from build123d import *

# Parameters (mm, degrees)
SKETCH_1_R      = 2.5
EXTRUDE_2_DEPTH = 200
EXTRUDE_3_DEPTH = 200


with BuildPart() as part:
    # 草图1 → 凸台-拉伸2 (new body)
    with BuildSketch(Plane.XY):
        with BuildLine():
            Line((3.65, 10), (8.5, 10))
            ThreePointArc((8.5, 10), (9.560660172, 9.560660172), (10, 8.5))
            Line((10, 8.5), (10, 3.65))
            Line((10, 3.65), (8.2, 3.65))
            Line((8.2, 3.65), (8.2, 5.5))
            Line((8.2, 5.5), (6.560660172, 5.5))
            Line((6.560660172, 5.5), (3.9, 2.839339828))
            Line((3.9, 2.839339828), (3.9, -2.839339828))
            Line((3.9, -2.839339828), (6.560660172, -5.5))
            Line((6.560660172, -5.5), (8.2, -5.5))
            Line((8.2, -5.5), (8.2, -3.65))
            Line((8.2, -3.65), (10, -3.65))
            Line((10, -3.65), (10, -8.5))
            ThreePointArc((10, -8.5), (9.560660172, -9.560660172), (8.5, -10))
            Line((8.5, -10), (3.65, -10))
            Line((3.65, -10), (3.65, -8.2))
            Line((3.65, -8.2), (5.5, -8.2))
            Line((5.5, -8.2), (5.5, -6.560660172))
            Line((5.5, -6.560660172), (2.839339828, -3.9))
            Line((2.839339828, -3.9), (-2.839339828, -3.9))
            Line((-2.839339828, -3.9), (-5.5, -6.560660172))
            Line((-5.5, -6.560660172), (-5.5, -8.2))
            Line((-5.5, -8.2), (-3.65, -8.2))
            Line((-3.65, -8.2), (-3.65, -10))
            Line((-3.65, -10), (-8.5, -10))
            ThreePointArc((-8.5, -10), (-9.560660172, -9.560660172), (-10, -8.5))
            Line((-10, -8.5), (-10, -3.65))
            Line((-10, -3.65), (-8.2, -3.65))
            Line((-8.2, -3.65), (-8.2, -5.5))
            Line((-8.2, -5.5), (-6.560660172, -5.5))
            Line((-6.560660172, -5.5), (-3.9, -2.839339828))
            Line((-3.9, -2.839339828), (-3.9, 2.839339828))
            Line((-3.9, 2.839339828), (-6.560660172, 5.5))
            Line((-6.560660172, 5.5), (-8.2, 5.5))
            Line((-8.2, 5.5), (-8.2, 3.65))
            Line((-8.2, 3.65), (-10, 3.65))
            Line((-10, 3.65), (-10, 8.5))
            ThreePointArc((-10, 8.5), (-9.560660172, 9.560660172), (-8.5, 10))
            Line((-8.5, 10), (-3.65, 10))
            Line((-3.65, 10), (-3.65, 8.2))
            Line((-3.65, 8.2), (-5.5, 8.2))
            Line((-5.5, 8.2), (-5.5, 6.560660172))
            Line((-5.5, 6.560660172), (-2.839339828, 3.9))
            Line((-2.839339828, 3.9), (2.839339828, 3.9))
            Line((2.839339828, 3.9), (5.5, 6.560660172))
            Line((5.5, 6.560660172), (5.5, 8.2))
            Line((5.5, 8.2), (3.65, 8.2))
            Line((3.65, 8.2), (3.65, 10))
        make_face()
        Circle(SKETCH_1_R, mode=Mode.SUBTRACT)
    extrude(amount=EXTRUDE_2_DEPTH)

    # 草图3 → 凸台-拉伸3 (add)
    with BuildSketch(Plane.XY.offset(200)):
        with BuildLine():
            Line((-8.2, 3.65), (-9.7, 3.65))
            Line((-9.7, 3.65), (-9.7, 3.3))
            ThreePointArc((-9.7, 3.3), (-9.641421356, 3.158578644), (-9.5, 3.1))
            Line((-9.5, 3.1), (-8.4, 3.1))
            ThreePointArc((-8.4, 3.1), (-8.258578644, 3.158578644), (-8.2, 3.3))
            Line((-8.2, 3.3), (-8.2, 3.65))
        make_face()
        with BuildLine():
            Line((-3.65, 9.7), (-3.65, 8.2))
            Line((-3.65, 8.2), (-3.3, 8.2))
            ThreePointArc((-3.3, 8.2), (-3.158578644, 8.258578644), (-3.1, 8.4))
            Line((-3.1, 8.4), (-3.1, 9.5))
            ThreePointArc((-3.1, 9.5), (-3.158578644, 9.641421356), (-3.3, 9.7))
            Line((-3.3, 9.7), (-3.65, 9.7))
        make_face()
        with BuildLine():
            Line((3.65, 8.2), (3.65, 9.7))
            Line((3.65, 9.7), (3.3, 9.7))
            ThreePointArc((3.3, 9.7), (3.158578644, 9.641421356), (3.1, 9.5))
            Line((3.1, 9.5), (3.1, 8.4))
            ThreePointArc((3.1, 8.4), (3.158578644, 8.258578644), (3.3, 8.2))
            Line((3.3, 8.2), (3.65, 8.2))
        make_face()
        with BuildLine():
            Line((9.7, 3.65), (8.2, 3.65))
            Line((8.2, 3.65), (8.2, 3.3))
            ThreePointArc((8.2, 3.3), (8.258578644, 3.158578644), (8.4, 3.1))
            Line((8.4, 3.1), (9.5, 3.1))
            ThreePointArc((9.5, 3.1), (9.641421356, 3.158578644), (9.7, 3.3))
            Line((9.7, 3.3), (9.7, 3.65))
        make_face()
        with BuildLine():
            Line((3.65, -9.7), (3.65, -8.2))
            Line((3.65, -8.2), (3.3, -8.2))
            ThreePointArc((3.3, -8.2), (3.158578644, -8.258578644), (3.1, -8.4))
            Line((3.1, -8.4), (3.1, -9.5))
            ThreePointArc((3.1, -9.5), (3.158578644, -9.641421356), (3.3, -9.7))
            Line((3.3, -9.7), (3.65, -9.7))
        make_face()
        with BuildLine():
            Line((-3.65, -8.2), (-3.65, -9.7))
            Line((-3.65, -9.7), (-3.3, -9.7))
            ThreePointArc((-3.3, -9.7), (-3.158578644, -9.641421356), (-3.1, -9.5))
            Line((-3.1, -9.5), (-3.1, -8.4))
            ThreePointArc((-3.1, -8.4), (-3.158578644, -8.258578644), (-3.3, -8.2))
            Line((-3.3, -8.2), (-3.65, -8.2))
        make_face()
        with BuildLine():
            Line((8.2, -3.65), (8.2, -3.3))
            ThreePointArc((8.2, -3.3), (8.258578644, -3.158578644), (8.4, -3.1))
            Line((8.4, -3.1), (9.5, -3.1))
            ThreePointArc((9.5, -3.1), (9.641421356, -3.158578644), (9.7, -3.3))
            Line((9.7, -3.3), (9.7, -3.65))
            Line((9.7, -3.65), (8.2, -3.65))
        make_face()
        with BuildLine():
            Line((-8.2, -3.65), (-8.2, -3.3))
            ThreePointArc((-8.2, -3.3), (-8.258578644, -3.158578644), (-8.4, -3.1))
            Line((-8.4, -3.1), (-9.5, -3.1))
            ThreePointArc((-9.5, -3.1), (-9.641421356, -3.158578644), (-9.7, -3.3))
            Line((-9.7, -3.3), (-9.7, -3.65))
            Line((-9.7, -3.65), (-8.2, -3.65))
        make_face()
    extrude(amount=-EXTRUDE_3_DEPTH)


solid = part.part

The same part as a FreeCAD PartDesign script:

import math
import FreeCAD as App
import Part
import Sketcher

V = App.Vector
Q = App.Units.Quantity

doc = App.newDocument("Part")
params = doc.addObject("Spreadsheet::Sheet", "Params")
for row, (alias, value) in enumerate([
    ("sketch1_diameter", "5 mm"),
    ("sketch1_radius", "1.5 mm"),
    ("sketch1_width", "1.8 mm"),
    ("sketch1_width2", "4.85 mm"),
    ("pad1_length", "200 mm"),
    ("sketch2_radius", "0.2 mm"),
    ("sketch2_width", "1.5 mm"),
    ("sketch2_width2", "0.35 mm"),
    ("pad2_length", "200 mm"),
], start=1):
    params.set(f"A{row}", alias)
    params.set(f"B{row}", "=" + value)
    params.setAlias(f"B{row}", alias)

body = doc.addObject("PartDesign::Body", "Body")

sketch1 = body.newObject("Sketcher::SketchObject", "Sketch")
sketch1.AttachmentSupport = (doc.getObject("XY_Plane"), [""])
sketch1.MapMode = "FlatFace"
sketch1.addGeometry([
    Part.LineSegment(V(8.5, 10, 0), V(3.6, 10, 0)),
    Part.LineSegment(V(3.6, 10, 0), V(3.6, 8.2, 0)),
    Part.LineSegment(V(3.6, 8.2, 0), V(5.5, 8.2, 0)),
    Part.LineSegment(V(5.5, 8.2, 0), V(5.5, 6.6, 0)),
    Part.LineSegment(V(5.5, 6.6, 0), V(2.8, 3.9, 0)),
    Part.LineSegment(V(2.8, 3.9, 0), V(-2.8, 3.9, 0)),
    Part.LineSegment(V(-2.8, 3.9, 0), V(-5.5, 6.6, 0)),
    Part.LineSegment(V(-5.5, 6.6, 0), V(-5.5, 8.2, 0)),
    Part.LineSegment(V(-5.5, 8.2, 0), V(-3.6, 8.2, 0)),
    Part.LineSegment(V(-3.6, 8.2, 0), V(-3.6, 10, 0)),
    Part.LineSegment(V(-3.6, 10, 0), V(-8.5, 10, 0)),
    Part.ArcOfCircle(Part.Circle(V(-8.5, 8.5, 0), V(0, 0, 1), 1.5), math.radians(90), math.radians(180)),
    Part.LineSegment(V(-10, 8.5, 0), V(-10, 3.6, 0)),
    Part.LineSegment(V(-10, 3.6, 0), V(-8.2, 3.6, 0)),
    Part.LineSegment(V(-8.2, 3.6, 0), V(-8.2, 5.5, 0)),
    Part.LineSegment(V(-8.2, 5.5, 0), V(-6.6, 5.5, 0)),
    Part.LineSegment(V(-6.6, 5.5, 0), V(-3.9, 2.8, 0)),
    Part.LineSegment(V(-3.9, 2.8, 0), V(-3.9, -2.8, 0)),
    Part.LineSegment(V(-3.9, -2.8, 0), V(-6.6, -5.5, 0)),
    Part.LineSegment(V(-6.6, -5.5, 0), V(-8.2, -5.5, 0)),
    Part.LineSegment(V(-8.2, -5.5, 0), V(-8.2, -3.6, 0)),
    Part.LineSegment(V(-8.2, -3.6, 0), V(-10, -3.6, 0)),
    Part.LineSegment(V(-10, -3.6, 0), V(-10, -8.5, 0)),
    Part.ArcOfCircle(Part.Circle(V(-8.5, -8.5, 0), V(0, 0, 1), 1.5), math.radians(180), math.radians(270)),
    Part.LineSegment(V(-8.5, -10, 0), V(-3.6, -10, 0)),
    Part.LineSegment(V(-3.6, -10, 0), V(-3.6, -8.2, 0)),
    Part.LineSegment(V(-3.6, -8.2, 0), V(-5.5, -8.2, 0)),
    Part.LineSegment(V(-5.5, -8.2, 0), V(-5.5, -6.6, 0)),
    Part.LineSegment(V(-5.5, -6.6, 0), V(-2.8, -3.9, 0)),
    Part.LineSegment(V(-2.8, -3.9, 0), V(2.8, -3.9, 0)),
    Part.LineSegment(V(2.8, -3.9, 0), V(5.5, -6.6, 0)),
    Part.LineSegment(V(5.5, -6.6, 0), V(5.5, -8.2, 0)),
    Part.LineSegment(V(5.5, -8.2, 0), V(3.6, -8.2, 0)),
    Part.LineSegment(V(3.6, -8.2, 0), V(3.6, -10, 0)),
    Part.LineSegment(V(3.6, -10, 0), V(8.5, -10, 0)),
    Part.ArcOfCircle(Part.Circle(V(8.5, -8.5, 0), V(0, 0, 1), 1.5), math.radians(-90), math.radians(0)),
    Part.LineSegment(V(10, -8.5, 0), V(10, -3.6, 0)),
    Part.LineSegment(V(10, -3.6, 0), V(8.2, -3.6, 0)),
    Part.LineSegment(V(8.2, -3.6, 0), V(8.2, -5.5, 0)),
    Part.LineSegment(V(8.2, -5.5, 0), V(6.6, -5.5, 0)),
    Part.LineSegment(V(6.6, -5.5, 0), V(3.9, -2.8, 0)),
    Part.LineSegment(V(3.9, -2.8, 0), V(3.9, 2.8, 0)),
    Part.LineSegment(V(3.9, 2.8, 0), V(6.6, 5.5, 0)),
    Part.LineSegment(V(6.6, 5.5, 0), V(8.2, 5.5, 0)),
    Part.LineSegment(V(8.2, 5.5, 0), V(8.2, 3.6, 0)),
    Part.LineSegment(V(8.2, 3.6, 0), V(10, 3.6, 0)),
    Part.LineSegment(V(10, 3.6, 0), V(10, 8.5, 0)),
    Part.ArcOfCircle(Part.Circle(V(8.5, 8.5, 0), V(0, 0, 1), 1.5), math.radians(0), math.radians(90)),
    Part.Circle(V(0, 0, 0), V(0, 0, 1), 2.5),
], False)
sketch1.addConstraint([
    Sketcher.Constraint("Coincident", 0, 2, 1, 1),
    Sketcher.Constraint("Coincident", 1, 2, 2, 1),
    Sketcher.Constraint("Coincident", 2, 2, 3, 1),
    Sketcher.Constraint("Coincident", 3, 2, 4, 1),
    Sketcher.Constraint("Coincident", 4, 2, 5, 1),
    Sketcher.Constraint("Coincident", 5, 2, 6, 1),
    Sketcher.Constraint("Coincident", 6, 2, 7, 1),
    Sketcher.Constraint("Coincident", 7, 2, 8, 1),
    Sketcher.Constraint("Coincident", 8, 2, 9, 1),
    Sketcher.Constraint("Coincident", 9, 2, 10, 1),
    Sketcher.Constraint("Tangent", 10, 2, 11, 1),
    Sketcher.Constraint("Tangent", 11, 2, 12, 1),
    Sketcher.Constraint("Coincident", 12, 2, 13, 1),
    Sketcher.Constraint("Coincident", 13, 2, 14, 1),
    Sketcher.Constraint("Coincident", 14, 2, 15, 1),
    Sketcher.Constraint("Coincident", 15, 2, 16, 1),
    Sketcher.Constraint("Coincident", 16, 2, 17, 1),
    Sketcher.Constraint("Coincident", 17, 2, 18, 1),
    Sketcher.Constraint("Coincident", 18, 2, 19, 1),
    Sketcher.Constraint("Coincident", 19, 2, 20, 1),
    Sketcher.Constraint("Coincident", 20, 2, 21, 1),
    Sketcher.Constraint("Coincident", 21, 2, 22, 1),
    Sketcher.Constraint("Tangent", 22, 2, 23, 1),
    Sketcher.Constraint("Tangent", 23, 2, 24, 1),
    Sketcher.Constraint("Coincident", 24, 2, 25, 1),
    Sketcher.Constraint("Coincident", 25, 2, 26, 1),
    Sketcher.Constraint("Coincident", 26, 2, 27, 1),
    Sketcher.Constraint("Coincident", 27, 2, 28, 1),
    Sketcher.Constraint("Coincident", 28, 2, 29, 1),
    Sketcher.Constraint("Coincident", 29, 2, 30, 1),
    Sketcher.Constraint("Coincident", 30, 2, 31, 1),
    Sketcher.Constraint("Coincident", 31, 2, 32, 1),
    Sketcher.Constraint("Coincident", 32, 2, 33, 1),
    Sketcher.Constraint("Coincident", 33, 2, 34, 1),
    Sketcher.Constraint("Tangent", 34, 2, 35, 1),
    Sketcher.Constraint("Tangent", 35, 2, 36, 1),
    Sketcher.Constraint("Coincident", 36, 2, 37, 1),
    Sketcher.Constraint("Coincident", 37, 2, 38, 1),
    Sketcher.Constraint("Coincident", 38, 2, 39, 1),
    Sketcher.Constraint("Coincident", 39, 2, 40, 1),
    Sketcher.Constraint("Coincident", 40, 2, 41, 1),
    Sketcher.Constraint("Coincident", 41, 2, 42, 1),
    Sketcher.Constraint("Coincident", 42, 2, 43, 1),
    Sketcher.Constraint("Coincident", 43, 2, 44, 1),
    Sketcher.Constraint("Coincident", 44, 2, 45, 1),
    Sketcher.Constraint("Coincident", 45, 2, 46, 1),
    Sketcher.Constraint("Tangent", 46, 2, 47, 1),
    Sketcher.Constraint("Tangent", 47, 2, 0, 1),
    Sketcher.Constraint("Horizontal", 0),
    Sketcher.Constraint("Vertical", 1),
    Sketcher.Constraint("Horizontal", 2),
    Sketcher.Constraint("Vertical", 3),
    Sketcher.Constraint("Horizontal", 5),
    Sketcher.Constraint("Vertical", 7),
    Sketcher.Constraint("Horizontal", 8),
    Sketcher.Constraint("Vertical", 9),
    Sketcher.Constraint("Horizontal", 10),
    Sketcher.Constraint("Vertical", 12),
    Sketcher.Constraint("Horizontal", 13),
    Sketcher.Constraint("Vertical", 14),
    Sketcher.Constraint("Horizontal", 15),
    Sketcher.Constraint("Vertical", 17),
    Sketcher.Constraint("Horizontal", 19),
    Sketcher.Constraint("Vertical", 20),
    Sketcher.Constraint("Horizontal", 21),
    Sketcher.Constraint("Vertical", 22),
    Sketcher.Constraint("Horizontal", 24),
    Sketcher.Constraint("Vertical", 25),
    Sketcher.Constraint("Horizontal", 26),
    Sketcher.Constraint("Vertical", 27),
    Sketcher.Constraint("Horizontal", 29),
    Sketcher.Constraint("Vertical", 31),
    Sketcher.Constraint("Horizontal", 32),
    Sketcher.Constraint("Vertical", 33),
    Sketcher.Constraint("Horizontal", 34),
    Sketcher.Constraint("Vertical", 36),
    Sketcher.Constraint("Horizontal", 37),
    Sketcher.Constraint("Vertical", 38),
    Sketcher.Constraint("Horizontal", 39),
    Sketcher.Constraint("Vertical", 41),
    Sketcher.Constraint("Horizontal", 43),
    Sketcher.Constraint("Vertical", 44),
    Sketcher.Constraint("Horizontal", 45),
    Sketcher.Constraint("Vertical", 46),
    Sketcher.Constraint("Coincident", 48, 3, -1, 1),
    Sketcher.Constraint("Equal", 11, 23),
    Sketcher.Constraint("Equal", 23, 35),
    Sketcher.Constraint("Equal", 35, 47),
    Sketcher.Constraint("Symmetric", 11, 3, 35, 3, -1, 1),
    Sketcher.Constraint("Symmetric", 23, 3, 47, 3, -1, 1),
    Sketcher.Constraint("Symmetric", 1, 2, 25, 2, -1, 1),
    Sketcher.Constraint("Symmetric", 3, 2, 27, 2, -1, 1),
    Sketcher.Constraint("Symmetric", 4, 2, 28, 2, -1, 1),
    Sketcher.Constraint("Symmetric", 6, 2, 30, 2, -1, 1),
    Sketcher.Constraint("Symmetric", 8, 2, 32, 2, -1, 1),
    Sketcher.Constraint("Symmetric", 13, 2, 37, 2, -1, 1),
    Sketcher.Constraint("Symmetric", 15, 2, 39, 2, -1, 1),
    Sketcher.Constraint("Symmetric", 16, 2, 40, 2, -1, 1),
    Sketcher.Constraint("Symmetric", 18, 2, 42, 2, -1, 1),
    Sketcher.Constraint("Symmetric", 20, 2, 44, 2, -1, 1),
    Sketcher.Constraint("Symmetric", 23, 3, 35, 3, -2),
    Sketcher.Constraint("Symmetric", 3, 2, 6, 2, -2),
    Sketcher.Constraint("Symmetric", 1, 2, 8, 2, -2),
    Sketcher.Constraint("Symmetric", 20, 2, 37, 2, -2),
    Sketcher.Constraint("Symmetric", 18, 2, 39, 2, -2),
    Sketcher.Constraint("Perpendicular", 4, 6),
    Sketcher.Constraint("Parallel", 6, 16),
    Sketcher.Constraint("Perpendicular", 16, 18),
    Sketcher.Constraint("Perpendicular", 28, 30),
    Sketcher.Constraint("Perpendicular", 40, 42),
    Sketcher.Constraint("Horizontal", 17, 2, 40, 2),
    Sketcher.Constraint("Equal", 45, 1),
    Sketcher.Constraint("Equal", 43, 3),
    Sketcher.Constraint("Equal", 34, 12),
    Sketcher.Constraint("Equal", 32, 14),
    Sketcher.Constraint("Equal", 29, 17),
    Sketcher.Constraint("Equal", 6, 16),
    Sketcher.Constraint("Diameter", 48, Q("5 mm")),
    Sketcher.Constraint("Radius", 11, Q("1.5 mm")),
    Sketcher.Constraint("DistanceX", 13, 1, 13, 2, Q("1.8 mm")),
    Sketcher.Constraint("DistanceY", -1, 1, 0, 2, Q("10 mm")),
    Sketcher.Constraint("DistanceX", 2, 2, 47, 3, Q("3 mm")),
    Sketcher.Constraint("DistanceX", 0, 2, 0, 1, Q("4.85 mm")),
    Sketcher.Constraint("DistanceY", -1, 1, 4, 2, Q("3.9 mm")),
    Sketcher.Constraint("DistanceX", 5, 2, 5, 1, Q("5.67868 mm")),
])
sketch1.setExpression("Constraints[117]", "Params.sketch1_diameter")
sketch1.setExpression("Constraints[118]", "Params.sketch1_radius")
sketch1.setExpression("Constraints[119]", "Params.sketch1_width")
sketch1.setExpression("Constraints[122]", "Params.sketch1_width2")
pad1 = body.newObject("PartDesign::Pad", "Pad")
pad1.Profile = sketch1
pad1.setExpression("Length", "Params.pad1_length")

sketch2 = body.newObject("Sketcher::SketchObject", "Sketch001")
sketch2.AttachmentSupport = (doc.getObject("XY_Plane"), [""])
sketch2.MapMode = "FlatFace"
sketch2.AttachmentOffset = App.Placement(V(0, 0, 200), App.Rotation())
sketch2.addGeometry([
    Part.LineSegment(V(-8.2, 3.65, 0), V(-9.7, 3.65, 0)),
    Part.LineSegment(V(-9.7, 3.65, 0), V(-9.7, 3.3, 0)),
    Part.ArcOfCircle(Part.Circle(V(-9.5, 3.3, 0), V(0, 0, 1), 0.2), math.radians(-180), math.radians(-90)),
    Part.LineSegment(V(-9.5, 3.1, 0), V(-8.4, 3.1, 0)),
    Part.ArcOfCircle(Part.Circle(V(-8.4, 3.3, 0), V(0, 0, 1), 0.2), math.radians(-90), math.radians(0)),
    Part.LineSegment(V(-8.2, 3.3, 0), V(-8.2, 3.65, 0)),
    Part.LineSegment(V(-3.65, 9.7, 0), V(-3.65, 8.2, 0)),
    Part.LineSegment(V(-3.65, 8.2, 0), V(-3.3, 8.2, 0)),
    Part.ArcOfCircle(Part.Circle(V(-3.3, 8.4, 0), V(0, 0, 1), 0.2), math.radians(-90), math.radians(0)),
    Part.LineSegment(V(-3.1, 8.4, 0), V(-3.1, 9.5, 0)),
    Part.ArcOfCircle(Part.Circle(V(-3.3, 9.5, 0), V(0, 0, 1), 0.2), math.radians(0), math.radians(90)),
    Part.LineSegment(V(-3.3, 9.7, 0), V(-3.65, 9.7, 0)),
    Part.LineSegment(V(3.65, 8.2, 0), V(3.65, 9.7, 0)),
    Part.LineSegment(V(3.65, 9.7, 0), V(3.3, 9.7, 0)),
    Part.ArcOfCircle(Part.Circle(V(3.3, 9.5, 0), V(0, 0, 1), 0.2), math.radians(90), math.radians(180)),
    Part.LineSegment(V(3.1, 9.5, 0), V(3.1, 8.4, 0)),
    Part.ArcOfCircle(Part.Circle(V(3.3, 8.4, 0), V(0, 0, 1), 0.2), math.radians(-180), math.radians(-90)),
    Part.LineSegment(V(3.3, 8.2, 0), V(3.65, 8.2, 0)),
    Part.LineSegment(V(9.7, 3.65, 0), V(8.2, 3.65, 0)),
    Part.LineSegment(V(8.2, 3.65, 0), V(8.2, 3.3, 0)),
    Part.ArcOfCircle(Part.Circle(V(8.4, 3.3, 0), V(0, 0, 1), 0.2), math.radians(-180), math.radians(-90)),
    Part.LineSegment(V(8.4, 3.1, 0), V(9.5, 3.1, 0)),
    Part.ArcOfCircle(Part.Circle(V(9.5, 3.3, 0), V(0, 0, 1), 0.2), math.radians(-90), math.radians(0)),
    Part.LineSegment(V(9.7, 3.3, 0), V(9.7, 3.65, 0)),
    Part.LineSegment(V(3.65, -9.7, 0), V(3.65, -8.2, 0)),
    Part.LineSegment(V(3.65, -8.2, 0), V(3.3, -8.2, 0)),
    Part.ArcOfCircle(Part.Circle(V(3.3, -8.4, 0), V(0, 0, 1), 0.2), math.radians(90), math.radians(180)),
    Part.LineSegment(V(3.1, -8.4, 0), V(3.1, -9.5, 0)),
    Part.ArcOfCircle(Part.Circle(V(3.3, -9.5, 0), V(0, 0, 1), 0.2), math.radians(-180), math.radians(-90)),
    Part.LineSegment(V(3.3, -9.7, 0), V(3.65, -9.7, 0)),
    Part.LineSegment(V(-3.65, -8.2, 0), V(-3.65, -9.7, 0)),
    Part.LineSegment(V(-3.65, -9.7, 0), V(-3.3, -9.7, 0)),
    Part.ArcOfCircle(Part.Circle(V(-3.3, -9.5, 0), V(0, 0, 1), 0.2), math.radians(-90), math.radians(0)),
    Part.LineSegment(V(-3.1, -9.5, 0), V(-3.1, -8.4, 0)),
    Part.ArcOfCircle(Part.Circle(V(-3.3, -8.4, 0), V(0, 0, 1), 0.2), math.radians(0), math.radians(90)),
    Part.LineSegment(V(-3.3, -8.2, 0), V(-3.65, -8.2, 0)),
    Part.LineSegment(V(8.2, -3.3, 0), V(8.2, -3.65, 0)),
    Part.LineSegment(V(8.2, -3.65, 0), V(9.7, -3.65, 0)),
    Part.LineSegment(V(9.7, -3.65, 0), V(9.7, -3.3, 0)),
    Part.ArcOfCircle(Part.Circle(V(9.5, -3.3, 0), V(0, 0, 1), 0.2), math.radians(0), math.radians(90)),
    Part.LineSegment(V(9.5, -3.1, 0), V(8.4, -3.1, 0)),
    Part.ArcOfCircle(Part.Circle(V(8.4, -3.3, 0), V(0, 0, 1), 0.2), math.radians(90), math.radians(180)),
    Part.LineSegment(V(-8.2, -3.65, 0), V(-8.2, -3.3, 0)),
    Part.ArcOfCircle(Part.Circle(V(-8.4, -3.3, 0), V(0, 0, 1), 0.2), math.radians(0), math.radians(90)),
    Part.LineSegment(V(-8.4, -3.1, 0), V(-9.5, -3.1, 0)),
    Part.ArcOfCircle(Part.Circle(V(-9.5, -3.3, 0), V(0, 0, 1), 0.2), math.radians(90), math.radians(180)),
    Part.LineSegment(V(-9.7, -3.3, 0), V(-9.7, -3.65, 0)),
    Part.LineSegment(V(-9.7, -3.65, 0), V(-8.2, -3.65, 0)),
], False)
sketch2.addConstraint([
    Sketcher.Constraint("Coincident", 0, 2, 1, 1),
    Sketcher.Constraint("Tangent", 1, 2, 2, 1),
    Sketcher.Constraint("Tangent", 2, 2, 3, 1),
    Sketcher.Constraint("Tangent", 3, 2, 4, 1),
    Sketcher.Constraint("Tangent", 4, 2, 5, 1),
    Sketcher.Constraint("Coincident", 5, 2, 0, 1),
    Sketcher.Constraint("Coincident", 6, 2, 7, 1),
    Sketcher.Constraint("Tangent", 7, 2, 8, 1),
    Sketcher.Constraint("Tangent", 8, 2, 9, 1),
    Sketcher.Constraint("Tangent", 9, 2, 10, 1),
    Sketcher.Constraint("Tangent", 10, 2, 11, 1),
    Sketcher.Constraint("Coincident", 11, 2, 6, 1),
    Sketcher.Constraint("Coincident", 12, 2, 13, 1),
    Sketcher.Constraint("Tangent", 13, 2, 14, 1),
    Sketcher.Constraint("Tangent", 14, 2, 15, 1),
    Sketcher.Constraint("Tangent", 15, 2, 16, 1),
    Sketcher.Constraint("Tangent", 16, 2, 17, 1),
    Sketcher.Constraint("Coincident", 17, 2, 12, 1),
    Sketcher.Constraint("Coincident", 18, 2, 19, 1),
    Sketcher.Constraint("Tangent", 19, 2, 20, 1),
    Sketcher.Constraint("Tangent", 20, 2, 21, 1),
    Sketcher.Constraint("Tangent", 21, 2, 22, 1),
    Sketcher.Constraint("Tangent", 22, 2, 23, 1),
    Sketcher.Constraint("Coincident", 23, 2, 18, 1),
    Sketcher.Constraint("Coincident", 24, 2, 25, 1),
    Sketcher.Constraint("Tangent", 25, 2, 26, 1),
    Sketcher.Constraint("Tangent", 26, 2, 27, 1),
    Sketcher.Constraint("Tangent", 27, 2, 28, 1),
    Sketcher.Constraint("Tangent", 28, 2, 29, 1),
    Sketcher.Constraint("Coincident", 29, 2, 24, 1),
    Sketcher.Constraint("Coincident", 30, 2, 31, 1),
    Sketcher.Constraint("Tangent", 31, 2, 32, 1),
    Sketcher.Constraint("Tangent", 32, 2, 33, 1),
    Sketcher.Constraint("Tangent", 33, 2, 34, 1),
    Sketcher.Constraint("Tangent", 34, 2, 35, 1),
    Sketcher.Constraint("Coincident", 35, 2, 30, 1),
    Sketcher.Constraint("Coincident", 36, 2, 37, 1),
    Sketcher.Constraint("Coincident", 37, 2, 38, 1),
    Sketcher.Constraint("Tangent", 38, 2, 39, 1),
    Sketcher.Constraint("Tangent", 39, 2, 40, 1),
    Sketcher.Constraint("Tangent", 40, 2, 41, 1),
    Sketcher.Constraint("Tangent", 41, 2, 36, 1),
    Sketcher.Constraint("Tangent", 42, 2, 43, 1),
    Sketcher.Constraint("Tangent", 43, 2, 44, 1),
    Sketcher.Constraint("Tangent", 44, 2, 45, 1),
    Sketcher.Constraint("Tangent", 45, 2, 46, 1),
    Sketcher.Constraint("Coincident", 46, 2, 47, 1),
    Sketcher.Constraint("Coincident", 47, 2, 42, 1),
    Sketcher.Constraint("Horizontal", 0),
    Sketcher.Constraint("Vertical", 1),
    Sketcher.Constraint("Horizontal", 3),
    Sketcher.Constraint("Vertical", 5),
    Sketcher.Constraint("Vertical", 6),
    Sketcher.Constraint("Horizontal", 7),
    Sketcher.Constraint("Vertical", 9),
    Sketcher.Constraint("Horizontal", 11),
    Sketcher.Constraint("Vertical", 12),
    Sketcher.Constraint("Horizontal", 13),
    Sketcher.Constraint("Vertical", 15),
    Sketcher.Constraint("Horizontal", 17),
    Sketcher.Constraint("Horizontal", 18),
    Sketcher.Constraint("Vertical", 19),
    Sketcher.Constraint("Horizontal", 21),
    Sketcher.Constraint("Vertical", 23),
    Sketcher.Constraint("Vertical", 24),
    Sketcher.Constraint("Horizontal", 25),
    Sketcher.Constraint("Vertical", 27),
    Sketcher.Constraint("Horizontal", 29),
    Sketcher.Constraint("Vertical", 30),
    Sketcher.Constraint("Horizontal", 31),
    Sketcher.Constraint("Vertical", 33),
    Sketcher.Constraint("Horizontal", 35),
    Sketcher.Constraint("Vertical", 36),
    Sketcher.Constraint("Horizontal", 37),
    Sketcher.Constraint("Vertical", 38),
    Sketcher.Constraint("Horizontal", 40),
    Sketcher.Constraint("Vertical", 42),
    Sketcher.Constraint("Horizontal", 44),
    Sketcher.Constraint("Vertical", 46),
    Sketcher.Constraint("Horizontal", 47),
    Sketcher.Constraint("Equal", 2, 4),
    Sketcher.Constraint("Equal", 4, 8),
    Sketcher.Constraint("Equal", 8, 10),
    Sketcher.Constraint("Equal", 10, 14),
    Sketcher.Constraint("Equal", 14, 16),
    Sketcher.Constraint("Equal", 16, 20),
    Sketcher.Constraint("Equal", 20, 22),
    Sketcher.Constraint("Equal", 22, 26),
    Sketcher.Constraint("Equal", 26, 28),
    Sketcher.Constraint("Equal", 28, 32),
    Sketcher.Constraint("Equal", 32, 34),
    Sketcher.Constraint("Equal", 34, 39),
    Sketcher.Constraint("Equal", 39, 41),
    Sketcher.Constraint("Equal", 41, 43),
    Sketcher.Constraint("Equal", 43, 45),
    Sketcher.Constraint("Symmetric", 8, 3, 26, 3, -1, 1),
    Sketcher.Constraint("Symmetric", 14, 3, 32, 3, -1, 1),
    Sketcher.Constraint("Symmetric", 2, 3, 39, 3, -1, 1),
    Sketcher.Constraint("Symmetric", 20, 3, 43, 3, -1, 1),
    Sketcher.Constraint("Symmetric", 11, 2, 29, 2, -1, 1),
    Sketcher.Constraint("Symmetric", 17, 2, 35, 2, -1, 1),
    Sketcher.Constraint("Symmetric", 5, 2, 36, 2, -1, 1),
    Sketcher.Constraint("Symmetric", 23, 2, 46, 2, -1, 1),
    Sketcher.Constraint("Symmetric", 10, 3, 14, 3, -2),
    Sketcher.Constraint("Symmetric", 4, 3, 20, 3, -2),
    Sketcher.Constraint("Symmetric", 6, 2, 17, 2, -2),
    Sketcher.Constraint("Symmetric", 0, 2, 23, 2, -2),
    Sketcher.Constraint("Equal", 35, 1),
    Sketcher.Constraint("Equal", 47, 6),
    Sketcher.Constraint("Radius", 2, Q("0.2 mm")),
    Sketcher.Constraint("DistanceX", 0, 2, 0, 1, Q("1.5 mm")),
    Sketcher.Constraint("DistanceX", 7, 1, 7, 2, Q("0.35 mm")),
    Sketcher.Constraint("DistanceX", 2, 3, -1, 1, Q("9.5 mm")),
    Sketcher.Constraint("DistanceY", -1, 1, 2, 3, Q("3.3 mm")),
    Sketcher.Constraint("DistanceX", 8, 3, -1, 1, Q("3.3 mm")),
    Sketcher.Constraint("DistanceY", -1, 1, 8, 3, Q("8.4 mm")),
])
sketch2.setExpression("Constraints[109]", "Params.sketch2_radius")
sketch2.setExpression("Constraints[110]", "Params.sketch2_width")
sketch2.setExpression("Constraints[111]", "Params.sketch2_width2")
pad2 = body.newObject("PartDesign::Pad", "Pad001")
pad2.Profile = sketch2
pad2.setExpression("Length", "Params.pad2_length")
pad2.Reversed = True

doc.recompute()
